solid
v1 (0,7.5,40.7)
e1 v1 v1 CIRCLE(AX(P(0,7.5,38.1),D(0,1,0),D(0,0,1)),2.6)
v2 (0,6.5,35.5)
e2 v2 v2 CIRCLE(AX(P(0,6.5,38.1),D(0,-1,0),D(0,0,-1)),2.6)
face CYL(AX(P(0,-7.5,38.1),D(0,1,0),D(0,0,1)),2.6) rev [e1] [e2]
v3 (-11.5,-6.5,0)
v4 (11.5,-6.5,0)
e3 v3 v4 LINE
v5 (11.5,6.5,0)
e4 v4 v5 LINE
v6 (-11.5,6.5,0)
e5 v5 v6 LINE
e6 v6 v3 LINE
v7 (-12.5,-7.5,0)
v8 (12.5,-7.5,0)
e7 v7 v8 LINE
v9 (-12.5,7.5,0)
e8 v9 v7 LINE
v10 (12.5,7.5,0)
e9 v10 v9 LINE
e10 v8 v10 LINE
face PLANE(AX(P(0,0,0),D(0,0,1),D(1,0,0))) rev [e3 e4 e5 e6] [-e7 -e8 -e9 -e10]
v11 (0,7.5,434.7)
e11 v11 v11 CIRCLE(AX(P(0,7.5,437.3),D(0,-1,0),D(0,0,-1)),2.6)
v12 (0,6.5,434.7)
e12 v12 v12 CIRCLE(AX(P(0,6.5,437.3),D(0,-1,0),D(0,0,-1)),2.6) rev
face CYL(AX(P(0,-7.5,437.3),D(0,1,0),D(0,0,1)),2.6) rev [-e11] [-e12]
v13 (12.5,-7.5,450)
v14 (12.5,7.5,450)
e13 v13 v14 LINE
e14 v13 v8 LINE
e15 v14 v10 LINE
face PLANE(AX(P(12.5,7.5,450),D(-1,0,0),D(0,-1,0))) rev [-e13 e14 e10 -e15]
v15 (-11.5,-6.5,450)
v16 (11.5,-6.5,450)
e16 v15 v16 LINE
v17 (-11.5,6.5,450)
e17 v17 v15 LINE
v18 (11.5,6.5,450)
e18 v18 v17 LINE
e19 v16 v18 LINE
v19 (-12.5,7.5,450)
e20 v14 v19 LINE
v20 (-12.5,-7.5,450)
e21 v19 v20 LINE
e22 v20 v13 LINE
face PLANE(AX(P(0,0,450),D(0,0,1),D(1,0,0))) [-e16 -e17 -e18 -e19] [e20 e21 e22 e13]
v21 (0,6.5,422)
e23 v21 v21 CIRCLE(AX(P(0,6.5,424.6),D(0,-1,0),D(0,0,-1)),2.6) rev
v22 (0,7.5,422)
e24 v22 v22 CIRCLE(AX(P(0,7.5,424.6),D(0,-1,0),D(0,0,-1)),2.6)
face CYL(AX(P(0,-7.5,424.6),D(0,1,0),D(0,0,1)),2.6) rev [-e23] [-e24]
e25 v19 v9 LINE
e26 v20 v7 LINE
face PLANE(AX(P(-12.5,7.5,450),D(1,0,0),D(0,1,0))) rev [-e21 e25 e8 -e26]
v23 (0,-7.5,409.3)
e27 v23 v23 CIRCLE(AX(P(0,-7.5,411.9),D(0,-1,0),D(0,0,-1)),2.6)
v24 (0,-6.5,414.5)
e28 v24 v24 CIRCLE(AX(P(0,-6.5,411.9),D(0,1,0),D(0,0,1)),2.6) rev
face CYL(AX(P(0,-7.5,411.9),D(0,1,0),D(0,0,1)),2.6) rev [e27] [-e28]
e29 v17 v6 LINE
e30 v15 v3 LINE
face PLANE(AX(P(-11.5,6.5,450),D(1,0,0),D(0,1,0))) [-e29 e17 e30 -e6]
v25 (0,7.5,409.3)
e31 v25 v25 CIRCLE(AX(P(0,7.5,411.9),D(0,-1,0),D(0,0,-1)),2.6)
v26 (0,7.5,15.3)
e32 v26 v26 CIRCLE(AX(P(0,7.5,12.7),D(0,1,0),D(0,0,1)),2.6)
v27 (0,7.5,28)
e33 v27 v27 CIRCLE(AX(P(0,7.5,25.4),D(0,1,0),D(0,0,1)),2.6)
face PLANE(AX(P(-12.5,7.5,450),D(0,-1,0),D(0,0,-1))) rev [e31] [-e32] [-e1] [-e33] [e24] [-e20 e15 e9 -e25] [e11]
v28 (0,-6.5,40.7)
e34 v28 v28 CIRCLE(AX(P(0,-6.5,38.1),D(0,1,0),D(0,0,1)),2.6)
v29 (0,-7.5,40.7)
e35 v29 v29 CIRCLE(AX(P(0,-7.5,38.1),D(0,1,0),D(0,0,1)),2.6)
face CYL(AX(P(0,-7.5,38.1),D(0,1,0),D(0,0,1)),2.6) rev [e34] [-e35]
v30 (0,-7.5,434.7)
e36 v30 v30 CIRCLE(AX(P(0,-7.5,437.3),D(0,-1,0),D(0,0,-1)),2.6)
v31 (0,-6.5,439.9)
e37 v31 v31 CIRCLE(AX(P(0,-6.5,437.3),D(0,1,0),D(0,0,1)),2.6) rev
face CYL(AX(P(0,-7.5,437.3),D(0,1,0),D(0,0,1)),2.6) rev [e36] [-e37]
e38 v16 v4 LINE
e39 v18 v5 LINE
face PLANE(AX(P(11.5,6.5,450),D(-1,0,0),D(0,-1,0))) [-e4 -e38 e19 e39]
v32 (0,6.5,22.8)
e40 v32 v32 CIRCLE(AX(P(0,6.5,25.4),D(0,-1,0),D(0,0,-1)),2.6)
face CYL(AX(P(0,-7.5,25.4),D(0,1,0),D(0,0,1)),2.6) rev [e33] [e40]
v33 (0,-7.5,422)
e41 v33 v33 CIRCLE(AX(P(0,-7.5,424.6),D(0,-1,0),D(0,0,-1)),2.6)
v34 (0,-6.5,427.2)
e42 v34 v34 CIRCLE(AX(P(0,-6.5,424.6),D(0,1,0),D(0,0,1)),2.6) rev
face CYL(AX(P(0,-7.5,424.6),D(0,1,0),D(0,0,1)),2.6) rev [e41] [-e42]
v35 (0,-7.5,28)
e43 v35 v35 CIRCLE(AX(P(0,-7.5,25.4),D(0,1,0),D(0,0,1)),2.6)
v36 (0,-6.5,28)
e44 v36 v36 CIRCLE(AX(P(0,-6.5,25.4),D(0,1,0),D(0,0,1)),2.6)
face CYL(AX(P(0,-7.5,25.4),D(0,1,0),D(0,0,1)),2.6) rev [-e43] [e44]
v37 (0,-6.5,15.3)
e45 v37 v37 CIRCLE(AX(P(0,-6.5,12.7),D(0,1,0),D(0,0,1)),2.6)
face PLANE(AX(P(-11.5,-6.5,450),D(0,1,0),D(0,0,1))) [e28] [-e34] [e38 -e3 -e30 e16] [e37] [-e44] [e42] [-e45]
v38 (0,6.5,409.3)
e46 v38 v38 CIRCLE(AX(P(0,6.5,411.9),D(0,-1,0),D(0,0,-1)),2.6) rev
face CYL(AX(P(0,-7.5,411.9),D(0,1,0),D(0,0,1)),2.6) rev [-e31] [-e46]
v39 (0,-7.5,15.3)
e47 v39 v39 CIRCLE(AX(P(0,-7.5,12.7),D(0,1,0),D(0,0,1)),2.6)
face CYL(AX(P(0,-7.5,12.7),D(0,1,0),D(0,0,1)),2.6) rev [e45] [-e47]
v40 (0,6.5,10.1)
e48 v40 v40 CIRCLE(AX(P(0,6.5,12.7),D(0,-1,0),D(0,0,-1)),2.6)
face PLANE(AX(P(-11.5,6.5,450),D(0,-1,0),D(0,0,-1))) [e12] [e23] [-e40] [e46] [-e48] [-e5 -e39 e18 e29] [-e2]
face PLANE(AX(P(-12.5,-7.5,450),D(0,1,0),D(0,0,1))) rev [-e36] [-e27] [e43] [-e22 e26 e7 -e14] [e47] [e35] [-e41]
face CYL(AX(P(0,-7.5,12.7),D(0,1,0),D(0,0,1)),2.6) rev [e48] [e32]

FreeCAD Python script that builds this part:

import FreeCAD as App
import Part
import Sketcher

V = App.Vector
Q = App.Units.Quantity


def add_polygon(sketch, points):
    """Adds a closed chain of lines whose ends are joined by coincident constraints."""
    first, n = sketch.GeometryCount, len(points)
    for a, b in zip(points, points[1:] + points[:1]):
        sketch.addGeometry(Part.LineSegment(App.Vector(*a, 0), App.Vector(*b, 0)), False)
    for i in range(n):
        sketch.addConstraint(Sketcher.Constraint("Coincident", first + i, 2, first + (i + 1) % n, 1))

doc = App.newDocument("Part")
params = doc.addObject("Spreadsheet::Sheet", "Params")
for row, (alias, value) in enumerate([
    ("sketch1_width", "25 mm"),
    ("sketch1_width2", "23 mm"),
    ("sketch1_height", "15 mm"),
    ("sketch1_height2", "13 mm"),
    ("pad1_length", "450 mm"),
    ("sketch2_diameter", "5.2 mm"),
], start=1):
    params.set(f"A{row}", alias)
    params.set(f"B{row}", "=" + value)
    params.setAlias(f"B{row}", alias)

body = doc.addObject("PartDesign::Body", "Body")

# Sketch on XY plane
sketch1 = doc.addObject("Sketcher::SketchObject", "Sketch")
body.addObject(sketch1)
sketch1.AttachmentSupport = (doc.XY_Plane, [""])
sketch1.MapMode = "FlatFace"
add_polygon(sketch1, [(-12, 8), (-12, -8), (12, -8), (12, 8)])  # lines 0-3
add_polygon(sketch1, [(12, -6), (-12, -6), (-12, 6), (12, 6)])  # lines 4-7
sketch1.addConstraint([
    Sketcher.Constraint("Vertical", 0),
    Sketcher.Constraint("Horizontal", 1),
    Sketcher.Constraint("Vertical", 2),
    Sketcher.Constraint("Horizontal", 3),
    Sketcher.Constraint("Horizontal", 4),
    Sketcher.Constraint("Vertical", 5),
    Sketcher.Constraint("Horizontal", 6),
    Sketcher.Constraint("Vertical", 7),
    Sketcher.Constraint("Symmetric", 0, 2, 2, 2, -1, 1),
    Sketcher.Constraint("Symmetric", 4, 2, 6, 2, -1, 1),
    Sketcher.Constraint("DistanceX", 1, 1, 1, 2, Q("25 mm")),
    Sketcher.Constraint("DistanceX", 4, 2, 4, 1, Q("23 mm")),
    Sketcher.Constraint("DistanceY", 0, 2, 0, 1, Q("15 mm")),
    Sketcher.Constraint("DistanceY", 5, 1, 5, 2, Q("13 mm")),
])
sketch1.setExpression("Constraints[18]", "Params.sketch1_width")
sketch1.setExpression("Constraints[19]", "Params.sketch1_width2")
sketch1.setExpression("Constraints[20]", "Params.sketch1_height")
sketch1.setExpression("Constraints[21]", "Params.sketch1_height2")
pad1 = doc.addObject("PartDesign::Pad", "Pad")
body.addObject(pad1)
pad1.Profile = sketch1
pad1.setExpression("Length", "Params.pad1_length")

# Sketch on XZ plane
sketch2 = doc.addObject("Sketcher::SketchObject", "Sketch001")
body.addObject(sketch2)
sketch2.AttachmentSupport = (doc.XZ_Plane, [""])
sketch2.MapMode = "FlatFace"
sketch2.AttachmentOffset = App.Placement(V(0, 0, -7.5), App.Rotation())
sketch2.addGeometry([
    Part.Circle(V(0, 12.7, 0), V(0, 0, 1), 2.6),
    Part.Circle(V(0, 25.4, 0), V(0, 0, 1), 2.6),
    Part.Circle(V(0, 38.1, 0), V(0, 0, 1), 2.6),
], False)
sketch2.addConstraint([
    Sketcher.Constraint("Equal", 0, 1),
    Sketcher.Constraint("Equal", 1, 2),
    Sketcher.Constraint("PointOnObject", 0, 3, -2),
    Sketcher.Constraint("PointOnObject", 1, 3, -2),
    Sketcher.Constraint("PointOnObject", 2, 3, -2),
    Sketcher.Constraint("Diameter", 0, Q("5.2 mm")),
    Sketcher.Constraint("DistanceY", -1, 1, 0, 3, Q("12.7 mm")),
    Sketcher.Constraint("DistanceY", -1, 1, 1, 3, Q("25.4 mm")),
    Sketcher.Constraint("DistanceY", -1, 1, 2, 3, Q("38.1 mm")),
])
sketch2.setExpression("Constraints[5]", "Params.sketch2_diameter")
pocket1 = doc.addObject("PartDesign::Pocket", "Pocket")
body.addObject(pocket1)
pocket1.Profile = sketch2
pocket1.Type = "ThroughAll"
pocket1.Reversed = True
doc.recompute()

datumplane = doc.addObject("PartDesign::Plane", "DatumPlane")
body.addObject(datumplane)
datumplane.AttachmentSupport = (doc.XY_Plane, [""])
datumplane.MapMode = "FlatFace"
datumplane.AttachmentOffset = App.Placement(V(0, 0, 225), App.Rotation())
mirrored = doc.addObject("PartDesign::Mirrored", "Mirrored")
body.addObject(mirrored)
mirrored.Originals = [pocket1]
mirrored.MirrorPlane = (datumplane, [""])
body.Tip = mirrored

doc.recompute()
